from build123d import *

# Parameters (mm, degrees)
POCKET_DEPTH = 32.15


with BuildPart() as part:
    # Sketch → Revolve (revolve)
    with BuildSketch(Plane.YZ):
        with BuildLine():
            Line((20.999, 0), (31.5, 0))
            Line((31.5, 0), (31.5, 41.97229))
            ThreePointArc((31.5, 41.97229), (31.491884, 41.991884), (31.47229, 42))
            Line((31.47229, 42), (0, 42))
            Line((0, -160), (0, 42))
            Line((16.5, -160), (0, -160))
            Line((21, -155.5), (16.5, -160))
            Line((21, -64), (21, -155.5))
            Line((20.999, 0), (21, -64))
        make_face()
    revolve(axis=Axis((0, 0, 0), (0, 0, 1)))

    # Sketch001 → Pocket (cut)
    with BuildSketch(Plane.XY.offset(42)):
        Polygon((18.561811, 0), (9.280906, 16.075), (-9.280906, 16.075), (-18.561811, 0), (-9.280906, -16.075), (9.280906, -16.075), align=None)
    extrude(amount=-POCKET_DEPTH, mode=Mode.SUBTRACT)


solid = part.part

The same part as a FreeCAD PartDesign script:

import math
import FreeCAD as App
import Part
import Sketcher

V = App.Vector
Q = App.Units.Quantity

doc = App.newDocument("Part")
body = doc.addObject("PartDesign::Body", "Body")

# Sketch on YZ plane
sketch1 = body.newObject("Sketcher::SketchObject", "Sketch")
sketch1.AttachmentSupport = (doc.getObject("YZ_Plane"), [""])
sketch1.MapMode = "FlatFace"
sketch1.addGeometry([
    Part.LineSegment(V(20.999, 0, 0), V(31.5, 0, 0)),  # 0
    Part.LineSegment(V(31.5, 0, 0), V(31.5, 41.972, 0)),  # 1
    Part.ArcOfCircle(Part.Circle(V(31.472, 41.972, 0), V(0, 0, 1), 0.028), math.radians(0), math.radians(90)),  # 2
    Part.LineSegment(V(31.472, 42, 0), V(0, 42, 0)),  # 3
    Part.LineSegment(V(0, 42, 0), V(0, -160, 0)),  # 4
    Part.LineSegment(V(0, -160, 0), V(16.5, -160, 0)),  # 5
    Part.LineSegment(V(16.5, -160, 0), V(21, -155.5, 0)),  # 6
    Part.LineSegment(V(21, -155.5, 0), V(21, -64, 0)),  # 7
    Part.LineSegment(V(21, -64, 0), V(20.999, 0, 0)),  # 8
], False)
sketch1.addConstraint([
    Sketcher.Constraint("Coincident", 0, 2, 1, 1),
    Sketcher.Constraint("Coincident", 1, 2, 2, 1),
    Sketcher.Constraint("Coincident", 2, 2, 3, 1),
    Sketcher.Constraint("Coincident", 3, 2, 4, 1),
    Sketcher.Constraint("Coincident", 4, 2, 5, 1),
    Sketcher.Constraint("Coincident", 5, 2, 6, 1),
    Sketcher.Constraint("Coincident", 6, 2, 7, 1),
    Sketcher.Constraint("Coincident", 7, 2, 8, 1),
    Sketcher.Constraint("Coincident", 8, 2, 0, 1),
    Sketcher.Constraint("Horizontal", 0),
    Sketcher.Constraint("Vertical", 1),
    Sketcher.Constraint("Horizontal", 3),
    Sketcher.Constraint("Vertical", 4),
    Sketcher.Constraint("Horizontal", 5),
    Sketcher.Constraint("Vertical", 7),
    Sketcher.Constraint("PointOnObject", 0, 2, -1),
    Sketcher.Constraint("PointOnObject", 3, 2, -2),
    Sketcher.Constraint("Horizontal", 2, 3, 1, 2),
    Sketcher.Constraint("DistanceY", 4, 2, 4, 1, Q("202 mm")),
    Sketcher.Constraint("Angle", 6, Q("45 deg")),
    Sketcher.Constraint("Distance", 8, Q("64 mm")),
    Sketcher.Constraint("DistanceX", 5, 1, 5, 2, Q("16.5 mm")),
    Sketcher.Constraint("DistanceY", 7, 1, 7, 2, Q("91.5 mm")),
    Sketcher.Constraint("DistanceY", -1, 1, 2, 2, Q("42 mm")),
    Sketcher.Constraint("DistanceX", 5, 2, 0, 2, Q("15 mm")),
    Sketcher.Constraint("DistanceX", 0, 1, 0, 2, Q("10.501 mm")),
    Sketcher.Constraint("Radius", 2, Q("0.02771 mm")),
    Sketcher.Constraint("DistanceX", 3, 2, 3, 1, Q("31.47229 mm")),
])
revolution = body.newObject("PartDesign::Revolution", "Revolution")
revolution.Profile = sketch1
revolution.ReferenceAxis = (sketch1, ["V_Axis"])
revolution.Angle = 360

# Sketch on XY plane
sketch2 = body.newObject("Sketcher::SketchObject", "Sketch001")
sketch2.AttachmentSupport = (doc.getObject("XY_Plane"), [""])
sketch2.MapMode = "FlatFace"
sketch2.AttachmentOffset = App.Placement(V(0, 0, 42), App.Rotation())
sketch2.addGeometry([
    Part.LineSegment(V(19, 0, 0), V(9, 16, 0)),  # 0
    Part.LineSegment(V(9, 16, 0), V(-9, 16, 0)),  # 1
    Part.LineSegment(V(-9, 16, 0), V(-19, 0, 0)),  # 2
    Part.LineSegment(V(-19, 0, 0), V(-9, -16, 0)),  # 3
    Part.LineSegment(V(-9, -16, 0), V(9, -16, 0)),  # 4
    Part.LineSegment(V(9, -16, 0), V(19, 0, 0)),  # 5
], False)
sketch2.addConstraint([
    Sketcher.Constraint("Coincident", 0, 2, 1, 1),
    Sketcher.Constraint("Coincident", 1, 2, 2, 1),
    Sketcher.Constraint("Coincident", 2, 2, 3, 1),
    Sketcher.Constraint("Coincident", 3, 2, 4, 1),
    Sketcher.Constraint("Coincident", 4, 2, 5, 1),
    Sketcher.Constraint("Coincident", 5, 2, 0, 1),
    Sketcher.Constraint("Horizontal", 1),
    Sketcher.Constraint("Horizontal", 4),
    Sketcher.Constraint("Symmetric", 0, 2, 3, 2, -1, 1),
    Sketcher.Constraint("Symmetric", 2, 2, 5, 2, -1, 1),
    Sketcher.Constraint("PointOnObject", 2, 2, -1),
    Sketcher.Constraint("Parallel", 2, 5),
    Sketcher.Constraint("Vertical", 1, 2, 3, 2),
    Sketcher.Constraint("Angle", 0, Q("119.999998 deg")),
    Sketcher.Constraint("DistanceY", 3, 2, 1, 2, Q("32.15 mm")),
    Sketcher.Constraint("DistanceX", 1, 2, 1, 1, Q("18.561812 mm")),
])
pocket1 = body.newObject("PartDesign::Pocket", "Pocket")
pocket1.Profile = sketch2
pocket1.Length = 32.15

doc.recompute()
